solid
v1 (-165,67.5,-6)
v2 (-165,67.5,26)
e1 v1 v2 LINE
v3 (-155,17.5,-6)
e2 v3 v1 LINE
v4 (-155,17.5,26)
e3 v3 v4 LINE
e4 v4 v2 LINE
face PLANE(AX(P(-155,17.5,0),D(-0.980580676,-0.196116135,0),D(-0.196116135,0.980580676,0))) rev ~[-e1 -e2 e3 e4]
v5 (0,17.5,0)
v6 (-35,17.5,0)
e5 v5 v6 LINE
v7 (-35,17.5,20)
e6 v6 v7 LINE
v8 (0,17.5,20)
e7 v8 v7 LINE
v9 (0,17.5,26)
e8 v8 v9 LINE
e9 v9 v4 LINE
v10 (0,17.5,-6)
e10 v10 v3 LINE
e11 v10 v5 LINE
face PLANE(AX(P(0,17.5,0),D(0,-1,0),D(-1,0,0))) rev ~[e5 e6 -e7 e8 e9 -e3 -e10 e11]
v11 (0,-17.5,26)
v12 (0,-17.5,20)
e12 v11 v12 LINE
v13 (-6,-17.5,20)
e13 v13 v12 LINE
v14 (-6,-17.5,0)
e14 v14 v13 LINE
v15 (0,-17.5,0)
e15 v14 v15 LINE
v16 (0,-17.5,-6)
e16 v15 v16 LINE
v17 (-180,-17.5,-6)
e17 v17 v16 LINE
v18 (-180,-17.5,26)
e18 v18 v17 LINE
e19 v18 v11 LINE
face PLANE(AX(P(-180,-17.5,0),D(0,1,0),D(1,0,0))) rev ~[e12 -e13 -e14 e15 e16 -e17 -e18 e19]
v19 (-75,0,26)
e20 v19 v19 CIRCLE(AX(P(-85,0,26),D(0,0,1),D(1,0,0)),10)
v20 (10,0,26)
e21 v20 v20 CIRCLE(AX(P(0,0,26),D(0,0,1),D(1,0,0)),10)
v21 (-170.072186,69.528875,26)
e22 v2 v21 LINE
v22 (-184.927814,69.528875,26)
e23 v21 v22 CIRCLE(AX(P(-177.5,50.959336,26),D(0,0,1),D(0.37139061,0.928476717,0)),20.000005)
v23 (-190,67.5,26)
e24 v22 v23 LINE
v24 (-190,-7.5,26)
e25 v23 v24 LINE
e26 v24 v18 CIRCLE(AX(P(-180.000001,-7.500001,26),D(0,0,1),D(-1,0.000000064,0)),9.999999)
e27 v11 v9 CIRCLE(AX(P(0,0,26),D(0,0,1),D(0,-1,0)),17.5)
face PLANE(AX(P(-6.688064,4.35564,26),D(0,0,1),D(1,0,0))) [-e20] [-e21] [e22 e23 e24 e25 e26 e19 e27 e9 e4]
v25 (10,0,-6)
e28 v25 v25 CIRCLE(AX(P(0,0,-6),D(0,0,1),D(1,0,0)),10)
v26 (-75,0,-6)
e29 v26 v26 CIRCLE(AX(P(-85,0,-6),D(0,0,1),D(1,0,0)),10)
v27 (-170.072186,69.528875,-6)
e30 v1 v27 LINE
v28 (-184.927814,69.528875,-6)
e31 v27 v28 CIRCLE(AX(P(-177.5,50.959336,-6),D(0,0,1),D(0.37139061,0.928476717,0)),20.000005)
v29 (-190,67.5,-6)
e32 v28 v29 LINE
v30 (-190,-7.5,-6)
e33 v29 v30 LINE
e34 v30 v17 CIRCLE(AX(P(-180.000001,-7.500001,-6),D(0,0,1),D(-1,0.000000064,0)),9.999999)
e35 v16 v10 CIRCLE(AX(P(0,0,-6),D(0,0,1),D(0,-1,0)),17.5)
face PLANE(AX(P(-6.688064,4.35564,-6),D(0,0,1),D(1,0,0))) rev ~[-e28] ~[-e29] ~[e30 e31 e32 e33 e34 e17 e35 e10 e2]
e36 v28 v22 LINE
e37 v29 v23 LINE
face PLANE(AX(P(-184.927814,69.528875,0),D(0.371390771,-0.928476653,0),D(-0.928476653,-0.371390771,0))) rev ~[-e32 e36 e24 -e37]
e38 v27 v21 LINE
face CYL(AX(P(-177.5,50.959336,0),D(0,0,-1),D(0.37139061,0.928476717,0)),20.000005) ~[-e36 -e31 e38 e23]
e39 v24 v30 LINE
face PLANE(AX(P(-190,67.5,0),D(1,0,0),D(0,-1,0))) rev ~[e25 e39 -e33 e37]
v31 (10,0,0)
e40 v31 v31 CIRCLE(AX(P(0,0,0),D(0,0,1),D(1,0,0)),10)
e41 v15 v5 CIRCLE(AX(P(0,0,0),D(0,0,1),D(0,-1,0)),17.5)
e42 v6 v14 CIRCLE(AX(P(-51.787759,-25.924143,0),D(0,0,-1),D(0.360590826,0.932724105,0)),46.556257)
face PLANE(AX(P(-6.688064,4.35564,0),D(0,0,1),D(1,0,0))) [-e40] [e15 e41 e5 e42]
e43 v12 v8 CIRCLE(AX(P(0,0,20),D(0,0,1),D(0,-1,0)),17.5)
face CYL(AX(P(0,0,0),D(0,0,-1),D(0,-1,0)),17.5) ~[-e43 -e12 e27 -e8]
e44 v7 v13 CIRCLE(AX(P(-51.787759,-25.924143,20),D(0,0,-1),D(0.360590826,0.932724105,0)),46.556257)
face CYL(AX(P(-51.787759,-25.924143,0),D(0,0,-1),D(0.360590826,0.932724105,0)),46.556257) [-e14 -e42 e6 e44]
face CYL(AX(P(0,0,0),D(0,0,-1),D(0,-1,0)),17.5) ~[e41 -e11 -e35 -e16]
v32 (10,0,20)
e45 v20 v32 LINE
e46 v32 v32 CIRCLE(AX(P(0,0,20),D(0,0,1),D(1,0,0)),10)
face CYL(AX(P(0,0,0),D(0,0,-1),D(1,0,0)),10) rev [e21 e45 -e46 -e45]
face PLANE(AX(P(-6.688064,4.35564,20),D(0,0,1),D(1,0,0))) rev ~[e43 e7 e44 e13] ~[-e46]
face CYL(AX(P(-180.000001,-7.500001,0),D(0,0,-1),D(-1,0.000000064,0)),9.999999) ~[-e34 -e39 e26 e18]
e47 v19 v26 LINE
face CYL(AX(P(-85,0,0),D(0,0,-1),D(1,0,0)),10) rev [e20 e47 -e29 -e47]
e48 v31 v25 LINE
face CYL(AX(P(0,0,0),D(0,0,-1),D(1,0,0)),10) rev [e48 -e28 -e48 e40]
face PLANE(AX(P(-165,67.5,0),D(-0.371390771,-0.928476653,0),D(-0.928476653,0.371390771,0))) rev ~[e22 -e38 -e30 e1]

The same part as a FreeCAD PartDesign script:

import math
import FreeCAD as App
import Part
import Sketcher
from FreeCAD import Vector
Q = App.Units.Quantity

doc = App.newDocument("Part")
params = doc.addObject("Spreadsheet::Sheet", "Params")
for row, (alias, value) in enumerate([
    ("sketch1_diameter", "20 mm"),
    ("sketch1_radius", "17.5 mm"),
    ("sketch1_width", "155 mm"),
    ("sketch1_width2", "180 mm"),
    ("sketch1_height", "75 mm"),
    ("pad1_length", "6 mm"),
    ("sketch2_diameter", "20 mm"),
    ("sketch2_radius", "17.5 mm"),
    ("sketch2_width", "155 mm"),
    ("sketch2_width2", "180 mm"),
    ("sketch2_height", "75 mm"),
    ("pad2_length", "26 mm"),
    ("sketch3_diameter", "20 mm"),
    ("sketch3_radius", "17.5 mm"),
    ("sketch3_width", "6 mm"),
    ("sketch3_width2", "35 mm"),
    ("pocket1_length", "20 mm"),
], start=1):
    params.set(f"A{row}", alias)
    params.set(f"B{row}", "=" + value)
    params.setAlias(f"B{row}", alias)

body = doc.addObject("PartDesign::Body", "Body")

# Sketch on XY plane
sketch1 = body.newObject("Sketcher::SketchObject", "Sketch")
sketch1.AttachmentSupport = (doc.getObject("XY_Plane"), [""])
sketch1.MapMode = "FlatFace"
sketch1.addGeometry([
    Part.ArcOfCircle(Part.Circle(Vector(0, 0, 0), Vector(0, 0, 1), 18), math.radians(-90), math.radians(90)),  # 0
    Part.LineSegment(Vector(0, 18, 0), Vector(-155, 18, 0)),  # 1
    Part.LineSegment(Vector(-155, 18, 0), Vector(-165, 68, 0)),  # 2
    Part.LineSegment(Vector(-165, 68, 0), Vector(-170, 70, 0)),  # 3
    Part.ArcOfCircle(Part.Circle(Vector(-178, 51, 0), Vector(0, 0, 1), 20), math.radians(68), math.radians(112)),  # 4
    Part.LineSegment(Vector(-185, 70, 0), Vector(-190, 68, 0)),  # 5
    Part.LineSegment(Vector(-190, 68, 0), Vector(-190, -8, 0)),  # 6
    Part.ArcOfCircle(Part.Circle(Vector(-180, -8, 0), Vector(0, 0, 1), 10), math.radians(180), math.radians(270)),  # 7
    Part.LineSegment(Vector(-180, -18, 0), Vector(0, -18, 0)),  # 8
    Part.Circle(Vector(-85, 0, 0), Vector(0, 0, 1), 10),  # 9
    Part.Circle(Vector(0, 0, 0), Vector(0, 0, 1), 10),  # 10
], False)
sketch1.addConstraint([
    Sketcher.Constraint("Tangent", 0, 2, 1, 1),
    Sketcher.Constraint("Coincident", 1, 2, 2, 1),
    Sketcher.Constraint("Coincident", 2, 2, 3, 1),
    Sketcher.Constraint("Tangent", 3, 2, 4, 1),
    Sketcher.Constraint("Tangent", 4, 2, 5, 1),
    Sketcher.Constraint("Coincident", 5, 2, 6, 1),
    Sketcher.Constraint("Tangent", 6, 2, 7, 1),
    Sketcher.Constraint("Tangent", 7, 2, 8, 1),
    Sketcher.Constraint("Tangent", 8, 2, 0, 1),
    Sketcher.Constraint("Horizontal", 1),
    Sketcher.Constraint("Vertical", 6),
    Sketcher.Constraint("Horizontal", 8),
    Sketcher.Constraint("Coincident", 0, 3, -1, 1),
    Sketcher.Constraint("Coincident", 10, 3, -1, 1),
    Sketcher.Constraint("Equal", 7, 9),
    Sketcher.Constraint("Equal", 9, 10),
    Sketcher.Constraint("PointOnObject", 9, 3, -1),
    Sketcher.Constraint("Horizontal", 3, 2, 4, 2),
    Sketcher.Constraint("Horizontal", 2, 2, 5, 2),
    Sketcher.Constraint("Diameter", 9, Q("20 mm")),
    Sketcher.Constraint("Radius", 0, Q("17.5 mm")),
    Sketcher.Constraint("DistanceX", 1, 2, 1, 1, Q("155 mm")),
    Sketcher.Constraint("DistanceX", 8, 1, 8, 2, Q("180 mm")),
    Sketcher.Constraint("DistanceY", 6, 2, 6, 1, Q("75 mm")),
    Sketcher.Constraint("DistanceX", 9, 3, -1, 1, Q("85 mm")),
    Sketcher.Constraint("DistanceX", 2, 2, -1, 1, Q("165 mm")),
    Sketcher.Constraint("Radius", 4, Q("20.000005 mm")),
    Sketcher.Constraint("Distance", 3, Q("5.462912 mm")),
])
sketch1.setExpression("Constraints[19]", "Params.sketch1_diameter")
sketch1.setExpression("Constraints[20]", "Params.sketch1_radius")
sketch1.setExpression("Constraints[21]", "Params.sketch1_width")
sketch1.setExpression("Constraints[22]", "Params.sketch1_width2")
sketch1.setExpression("Constraints[23]", "Params.sketch1_height")
pad1 = body.newObject("PartDesign::Pad", "Pad")
pad1.Profile = sketch1
pad1.setExpression("Length", "Params.pad1_length")
pad1.Reversed = True

# Sketch on XY plane
sketch2 = body.newObject("Sketcher::SketchObject", "Sketch001")
sketch2.AttachmentSupport = (doc.getObject("XY_Plane"), [""])
sketch2.MapMode = "FlatFace"
sketch2.addGeometry([
    Part.ArcOfCircle(Part.Circle(Vector(0, 0, 0), Vector(0, 0, 1), 18), math.radians(-90), math.radians(90)),  # 0
    Part.LineSegment(Vector(0, 18, 0), Vector(-155, 18, 0)),  # 1
    Part.LineSegment(Vector(-155, 18, 0), Vector(-165, 68, 0)),  # 2
    Part.LineSegment(Vector(-165, 68, 0), Vector(-170, 70, 0)),  # 3
    Part.ArcOfCircle(Part.Circle(Vector(-178, 51, 0), Vector(0, 0, 1), 20), math.radians(68), math.radians(112)),  # 4
    Part.LineSegment(Vector(-185, 70, 0), Vector(-190, 68, 0)),  # 5
    Part.LineSegment(Vector(-190, 68, 0), Vector(-190, -8, 0)),  # 6
    Part.ArcOfCircle(Part.Circle(Vector(-180, -8, 0), Vector(0, 0, 1), 10), math.radians(180), math.radians(270)),  # 7
    Part.LineSegment(Vector(-180, -18, 0), Vector(0, -18, 0)),  # 8
    Part.Circle(Vector(-85, 0, 0), Vector(0, 0, 1), 10),  # 9
    Part.Circle(Vector(0, 0, 0), Vector(0, 0, 1), 10),  # 10
], False)
sketch2.addConstraint([
    Sketcher.Constraint("Tangent", 0, 2, 1, 1),
    Sketcher.Constraint("Coincident", 1, 2, 2, 1),
    Sketcher.Constraint("Coincident", 2, 2, 3, 1),
    Sketcher.Constraint("Tangent", 3, 2, 4, 1),
    Sketcher.Constraint("Tangent", 4, 2, 5, 1),
    Sketcher.Constraint("Coincident", 5, 2, 6, 1),
    Sketcher.Constraint("Tangent", 6, 2, 7, 1),
    Sketcher.Constraint("Tangent", 7, 2, 8, 1),
    Sketcher.Constraint("Tangent", 8, 2, 0, 1),
    Sketcher.Constraint("Horizontal", 1),
    Sketcher.Constraint("Vertical", 6),
    Sketcher.Constraint("Horizontal", 8),
    Sketcher.Constraint("Coincident", 0, 3, -1, 1),
    Sketcher.Constraint("Coincident", 10, 3, -1, 1),
    Sketcher.Constraint("Equal", 7, 9),
    Sketcher.Constraint("Equal", 9, 10),
    Sketcher.Constraint("PointOnObject", 9, 3, -1),
    Sketcher.Constraint("Horizontal", 3, 2, 4, 2),
    Sketcher.Constraint("Horizontal", 2, 2, 5, 2),
    Sketcher.Constraint("Diameter", 9, Q("20 mm")),
    Sketcher.Constraint("Radius", 0, Q("17.5 mm")),
    Sketcher.Constraint("DistanceX", 1, 2, 1, 1, Q("155 mm")),
    Sketcher.Constraint("DistanceX", 8, 1, 8, 2, Q("180 mm")),
    Sketcher.Constraint("DistanceY", 6, 2, 6, 1, Q("75 mm")),
    Sketcher.Constraint("DistanceX", 9, 3, -1, 1, Q("85 mm")),
    Sketcher.Constraint("DistanceX", 2, 2, -1, 1, Q("165 mm")),
    Sketcher.Constraint("Radius", 4, Q("20.000005 mm")),
    Sketcher.Constraint("Distance", 3, Q("5.462912 mm")),
])
sketch2.setExpression("Constraints[19]", "Params.sketch2_diameter")
sketch2.setExpression("Constraints[20]", "Params.sketch2_radius")
sketch2.setExpression("Constraints[21]", "Params.sketch2_width")
sketch2.setExpression("Constraints[22]", "Params.sketch2_width2")
sketch2.setExpression("Constraints[23]", "Params.sketch2_height")
pad2 = body.newObject("PartDesign::Pad", "Pad001")
pad2.Profile = sketch2
pad2.setExpression("Length", "Params.pad2_length")

# Sketch on XY plane
sketch3 = body.newObject("Sketcher::SketchObject", "Sketch002")
sketch3.AttachmentSupport = (doc.getObject("XY_Plane"), [""])
sketch3.MapMode = "FlatFace"
sketch3.addGeometry([
    Part.LineSegment(Vector(-6, -18, 0), Vector(0, -18, 0)),  # 0
    Part.ArcOfCircle(Part.Circle(Vector(0, 0, 0), Vector(0, 0, 1), 18), math.radians(-90), math.radians(90)),  # 1
    Part.LineSegment(Vector(0, 18, 0), Vector(-35, 18, 0)),  # 2
    Part.ArcOfCircle(Part.Circle(Vector(-52, -26, 0), Vector(0, 0, 1), 47), math.radians(10), math.radians(69)),  # 3
    Part.Circle(Vector(0, 0, 0), Vector(0, 0, 1), 10),  # 4
], False)
sketch3.addConstraint([
    Sketcher.Constraint("Tangent", 0, 2, 1, 1),
    Sketcher.Constraint("Tangent", 1, 2, 2, 1),
    Sketcher.Constraint("Coincident", 2, 2, 3, 2),
    Sketcher.Constraint("Coincident", 3, 1, 0, 1),
    Sketcher.Constraint("Horizontal", 0),
    Sketcher.Constraint("Horizontal", 2),
    Sketcher.Constraint("Coincident", 1, 3, -1, 1),
    Sketcher.Constraint("Coincident", 4, 3, -1, 1),
    Sketcher.Constraint("Diameter", 4, Q("20 mm")),
    Sketcher.Constraint("Radius", 1, Q("17.5 mm")),
    Sketcher.Constraint("DistanceX", 0, 1, 0, 2, Q("6 mm")),
    Sketcher.Constraint("DistanceX", 2, 2, 2, 1, Q("35 mm")),
    Sketcher.Constraint("Radius", 3, Q("46.556257 mm")),
])
sketch3.setExpression("Constraints[8]", "Params.sketch3_diameter")
sketch3.setExpression("Constraints[9]", "Params.sketch3_radius")
sketch3.setExpression("Constraints[10]", "Params.sketch3_width")
sketch3.setExpression("Constraints[11]", "Params.sketch3_width2")
pocket1 = body.newObject("PartDesign::Pocket", "Pocket")
pocket1.Profile = sketch3
pocket1.setExpression("Length", "Params.pocket1_length")
pocket1.Reversed = True

doc.recompute()
